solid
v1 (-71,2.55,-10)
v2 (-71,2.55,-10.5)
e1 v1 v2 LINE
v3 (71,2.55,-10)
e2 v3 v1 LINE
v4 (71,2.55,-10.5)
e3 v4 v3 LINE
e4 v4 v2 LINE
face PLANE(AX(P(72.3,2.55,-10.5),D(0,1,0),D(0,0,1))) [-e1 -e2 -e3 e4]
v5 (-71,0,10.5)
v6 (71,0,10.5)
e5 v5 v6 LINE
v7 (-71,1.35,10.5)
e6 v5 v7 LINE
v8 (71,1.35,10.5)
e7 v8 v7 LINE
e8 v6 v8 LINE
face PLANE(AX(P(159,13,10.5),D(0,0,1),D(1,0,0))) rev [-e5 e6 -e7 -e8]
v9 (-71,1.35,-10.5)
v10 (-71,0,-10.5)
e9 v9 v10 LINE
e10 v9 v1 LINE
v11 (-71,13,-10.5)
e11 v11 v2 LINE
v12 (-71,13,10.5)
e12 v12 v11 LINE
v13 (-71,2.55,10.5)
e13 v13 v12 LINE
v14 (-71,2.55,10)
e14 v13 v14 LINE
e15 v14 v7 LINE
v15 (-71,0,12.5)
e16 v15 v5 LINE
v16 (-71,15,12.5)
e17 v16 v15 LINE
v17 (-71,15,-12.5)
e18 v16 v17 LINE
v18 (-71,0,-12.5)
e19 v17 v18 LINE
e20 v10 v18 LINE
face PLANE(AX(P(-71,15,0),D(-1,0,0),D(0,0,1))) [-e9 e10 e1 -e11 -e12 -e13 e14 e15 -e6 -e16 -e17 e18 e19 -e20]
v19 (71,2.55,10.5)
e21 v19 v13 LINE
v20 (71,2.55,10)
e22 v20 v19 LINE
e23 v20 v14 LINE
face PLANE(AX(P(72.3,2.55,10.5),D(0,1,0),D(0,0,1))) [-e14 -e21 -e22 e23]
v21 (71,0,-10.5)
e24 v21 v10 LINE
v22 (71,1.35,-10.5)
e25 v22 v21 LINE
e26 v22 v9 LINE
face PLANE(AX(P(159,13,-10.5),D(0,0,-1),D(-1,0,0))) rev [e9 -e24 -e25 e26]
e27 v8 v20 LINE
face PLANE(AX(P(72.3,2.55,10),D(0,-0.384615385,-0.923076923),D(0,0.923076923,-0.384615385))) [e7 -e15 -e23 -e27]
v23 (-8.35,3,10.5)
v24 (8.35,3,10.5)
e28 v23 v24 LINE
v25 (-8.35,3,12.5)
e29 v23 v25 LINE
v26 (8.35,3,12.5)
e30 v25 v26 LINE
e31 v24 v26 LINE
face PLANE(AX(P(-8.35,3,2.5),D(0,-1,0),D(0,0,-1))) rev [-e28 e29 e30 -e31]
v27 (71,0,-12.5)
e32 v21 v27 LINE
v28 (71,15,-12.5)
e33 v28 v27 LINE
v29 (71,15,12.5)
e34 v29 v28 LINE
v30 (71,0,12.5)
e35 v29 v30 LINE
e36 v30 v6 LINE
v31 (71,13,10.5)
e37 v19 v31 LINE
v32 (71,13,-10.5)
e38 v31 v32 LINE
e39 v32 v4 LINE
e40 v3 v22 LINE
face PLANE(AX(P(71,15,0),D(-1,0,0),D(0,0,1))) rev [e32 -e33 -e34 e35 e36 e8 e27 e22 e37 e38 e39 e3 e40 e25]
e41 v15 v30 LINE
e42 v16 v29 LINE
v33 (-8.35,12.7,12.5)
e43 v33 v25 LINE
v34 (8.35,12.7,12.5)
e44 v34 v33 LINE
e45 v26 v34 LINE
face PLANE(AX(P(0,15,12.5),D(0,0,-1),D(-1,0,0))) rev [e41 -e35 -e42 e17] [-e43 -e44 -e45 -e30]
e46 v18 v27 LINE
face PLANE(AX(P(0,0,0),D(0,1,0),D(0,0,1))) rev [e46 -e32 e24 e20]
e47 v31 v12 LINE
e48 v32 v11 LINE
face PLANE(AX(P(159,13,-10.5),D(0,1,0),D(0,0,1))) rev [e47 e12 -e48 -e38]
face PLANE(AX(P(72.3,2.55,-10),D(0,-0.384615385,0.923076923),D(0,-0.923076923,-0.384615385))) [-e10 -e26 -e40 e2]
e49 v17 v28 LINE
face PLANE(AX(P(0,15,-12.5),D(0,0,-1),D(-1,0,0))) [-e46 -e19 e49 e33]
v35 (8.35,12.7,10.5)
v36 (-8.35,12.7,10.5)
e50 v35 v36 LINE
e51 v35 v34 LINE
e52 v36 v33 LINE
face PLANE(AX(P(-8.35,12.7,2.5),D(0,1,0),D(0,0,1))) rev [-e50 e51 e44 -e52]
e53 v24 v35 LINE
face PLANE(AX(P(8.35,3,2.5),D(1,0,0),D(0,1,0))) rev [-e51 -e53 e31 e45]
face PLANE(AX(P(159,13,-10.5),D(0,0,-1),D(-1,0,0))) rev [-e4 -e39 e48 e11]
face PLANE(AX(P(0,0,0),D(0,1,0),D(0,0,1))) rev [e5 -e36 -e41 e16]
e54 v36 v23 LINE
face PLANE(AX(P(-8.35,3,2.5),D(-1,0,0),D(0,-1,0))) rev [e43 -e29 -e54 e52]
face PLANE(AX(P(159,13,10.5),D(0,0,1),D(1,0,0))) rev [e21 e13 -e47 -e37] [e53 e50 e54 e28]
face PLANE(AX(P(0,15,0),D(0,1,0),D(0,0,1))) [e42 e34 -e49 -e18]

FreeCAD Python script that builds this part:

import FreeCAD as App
import Part
import Sketcher
from FreeCAD import Vector

doc = App.newDocument("Part")
body = doc.addObject("PartDesign::Body", "Body")

# Sketch on XZ plane
sketch1 = body.newObject("Sketcher::SketchObject", "Sketch")
sketch1.AttachmentSupport = (doc.getObject("XZ_Plane"), [""])
sketch1.MapMode = "FlatFace"
sketch1.addGeometry([
    Part.LineSegment(Vector(71, -12, 0), Vector(-71, -12, 0)),
    Part.LineSegment(Vector(-71, -12, 0), Vector(-71, 12, 0)),
    Part.LineSegment(Vector(-71, 12, 0), Vector(71, 12, 0)),
    Part.LineSegment(Vector(71, 12, 0), Vector(71, -12, 0)),
], False)
sketch1.addConstraint([
    Sketcher.Constraint("Coincident", 0, 2, 1, 1),
    Sketcher.Constraint("Coincident", 1, 2, 2, 1),
    Sketcher.Constraint("Coincident", 2, 2, 3, 1),
    Sketcher.Constraint("Coincident", 3, 2, 0, 1),
    Sketcher.Constraint("Horizontal", 0),
    Sketcher.Constraint("Vertical", 1),
    Sketcher.Constraint("Horizontal", 2),
    Sketcher.Constraint("Vertical", 3),
    Sketcher.Constraint("Symmetric", 0, 2, 2, 2, -1, 1),
    Sketcher.Constraint("DistanceX", 0, 2, 0, 1, 142.0),
    Sketcher.Constraint("DistanceY", 1, 1, 1, 2, 25.0),
])
pad1 = body.newObject("PartDesign::Pad", "Pad")
pad1.Profile = sketch1
pad1.Length = 15
pad1.Reversed = True

# Sketch on YZ plane
sketch2 = body.newObject("Sketcher::SketchObject", "Sketch001")
sketch2.AttachmentSupport = (doc.getObject("YZ_Plane"), [""])
sketch2.MapMode = "FlatFace"
sketch2.AttachmentOffset = App.Placement(Vector(0, 0, -71), App.Rotation())
sketch2.addGeometry([
    Part.LineSegment(Vector(13, -10, 0), Vector(0, -10, 0)),
    Part.LineSegment(Vector(0, -10, 0), Vector(0, 10, 0)),
    Part.LineSegment(Vector(0, 10, 0), Vector(13, 10, 0)),
    Part.LineSegment(Vector(13, 10, 0), Vector(13, -10, 0)),
], False)
sketch2.addConstraint([
    Sketcher.Constraint("Coincident", 0, 2, 1, 1),
    Sketcher.Constraint("Coincident", 1, 2, 2, 1),
    Sketcher.Constraint("Coincident", 2, 2, 3, 1),
    Sketcher.Constraint("Coincident", 3, 2, 0, 1),
    Sketcher.Constraint("Horizontal", 0),
    Sketcher.Constraint("Vertical", 1),
    Sketcher.Constraint("Horizontal", 2),
    Sketcher.Constraint("Vertical", 3),
    Sketcher.Constraint("Symmetric", 0, 2, 1, 2, -1, 1),
    Sketcher.Constraint("DistanceX", 0, 2, 0, 1, 13.0),
    Sketcher.Constraint("DistanceY", 1, 1, 1, 2, 21.0),
])
pocket1 = body.newObject("PartDesign::Pocket", "Pocket")
pocket1.Profile = sketch2
pocket1.Length = 230
pocket1.Reversed = True

# Sketch on YZ plane
sketch3 = body.newObject("Sketcher::SketchObject", "Sketch002")
sketch3.AttachmentSupport = (doc.getObject("YZ_Plane"), [""])
sketch3.MapMode = "FlatFace"
sketch3.AttachmentOffset = App.Placement(Vector(0, 0, -71), App.Rotation())
sketch3.addGeometry([
    Part.LineSegment(Vector(2.5, -10.5, 0), Vector(1.4, -10.5, 0)),  # 0
    Part.LineSegment(Vector(1.4, -10.5, 0), Vector(2.5, -10, 0)),  # 1
    Part.LineSegment(Vector(2.5, -10, 0), Vector(2.5, -10.5, 0)),  # 2
    Part.LineSegment(Vector(2.5, 10, 0), Vector(1.4, 10.5, 0)),  # 3
    Part.LineSegment(Vector(1.4, 10.5, 0), Vector(2.5, 10.5, 0)),  # 4
    Part.LineSegment(Vector(2.5, 10.5, 0), Vector(2.5, 10, 0)),  # 5
], False)
sketch3.addConstraint([
    Sketcher.Constraint("Coincident", 0, 2, 1, 1),
    Sketcher.Constraint("Coincident", 1, 2, 2, 1),
    Sketcher.Constraint("Coincident", 2, 2, 0, 1),
    Sketcher.Constraint("Coincident", 3, 2, 4, 1),
    Sketcher.Constraint("Coincident", 4, 2, 5, 1),
    Sketcher.Constraint("Coincident", 5, 2, 3, 1),
    Sketcher.Constraint("Horizontal", 0),
    Sketcher.Constraint("Vertical", 2),
    Sketcher.Constraint("Horizontal", 4),
    Sketcher.Constraint("Vertical", 5),
    Sketcher.Constraint("Symmetric", 0, 2, 3, 2, -1),
    Sketcher.Constraint("Symmetric", 1, 2, 5, 2, -1),
    Sketcher.Constraint("DistanceX", 0, 2, 0, 1, 1.2),
    Sketcher.Constraint("DistanceY", 2, 2, 2, 1, 0.5),
    Sketcher.Constraint("DistanceY", 1, 2, -1, 1, 10.0),
    Sketcher.Constraint("DistanceX", -1, 1, 0, 2, 1.35),
])
pad2 = body.newObject("PartDesign::Pad", "Pad001")
pad2.Profile = sketch3
pad2.Length = 142

# Sketch on XY plane
sketch4 = body.newObject("Sketcher::SketchObject", "Sketch003")
sketch4.AttachmentSupport = (doc.getObject("XY_Plane"), [""])
sketch4.MapMode = "FlatFace"
sketch4.AttachmentOffset = App.Placement(Vector(0, 0, 12.5), App.Rotation())
sketch4.addGeometry([
    Part.LineSegment(Vector(-8, 13, 0), Vector(-8, 3, 0)),
    Part.LineSegment(Vector(-8, 3, 0), Vector(8, 3, 0)),
    Part.LineSegment(Vector(8, 3, 0), Vector(8, 13, 0)),
    Part.LineSegment(Vector(8, 13, 0), Vector(-8, 13, 0)),
], False)
sketch4.addConstraint([
    Sketcher.Constraint("Coincident", 0, 2, 1, 1),
    Sketcher.Constraint("Coincident", 1, 2, 2, 1),
    Sketcher.Constraint("Coincident", 2, 2, 3, 1),
    Sketcher.Constraint("Coincident", 3, 2, 0, 1),
    Sketcher.Constraint("Vertical", 0),
    Sketcher.Constraint("Horizontal", 1),
    Sketcher.Constraint("Vertical", 2),
    Sketcher.Constraint("Horizontal", 3),
    Sketcher.Constraint("DistanceX", 1, 1, 1, 2, 16.7),
    Sketcher.Constraint("DistanceY", 0, 2, 0, 1, 9.7),
    Sketcher.Constraint("DistanceY", -1, 1, 0, 2, 3.0),
    Sketcher.Constraint("DistanceX", 0, 2, -1, 1, 8.35),
])
pocket2 = body.newObject("PartDesign::Pocket", "Pocket001")
pocket2.Profile = sketch4
pocket2.Length = 10

doc.recompute()
